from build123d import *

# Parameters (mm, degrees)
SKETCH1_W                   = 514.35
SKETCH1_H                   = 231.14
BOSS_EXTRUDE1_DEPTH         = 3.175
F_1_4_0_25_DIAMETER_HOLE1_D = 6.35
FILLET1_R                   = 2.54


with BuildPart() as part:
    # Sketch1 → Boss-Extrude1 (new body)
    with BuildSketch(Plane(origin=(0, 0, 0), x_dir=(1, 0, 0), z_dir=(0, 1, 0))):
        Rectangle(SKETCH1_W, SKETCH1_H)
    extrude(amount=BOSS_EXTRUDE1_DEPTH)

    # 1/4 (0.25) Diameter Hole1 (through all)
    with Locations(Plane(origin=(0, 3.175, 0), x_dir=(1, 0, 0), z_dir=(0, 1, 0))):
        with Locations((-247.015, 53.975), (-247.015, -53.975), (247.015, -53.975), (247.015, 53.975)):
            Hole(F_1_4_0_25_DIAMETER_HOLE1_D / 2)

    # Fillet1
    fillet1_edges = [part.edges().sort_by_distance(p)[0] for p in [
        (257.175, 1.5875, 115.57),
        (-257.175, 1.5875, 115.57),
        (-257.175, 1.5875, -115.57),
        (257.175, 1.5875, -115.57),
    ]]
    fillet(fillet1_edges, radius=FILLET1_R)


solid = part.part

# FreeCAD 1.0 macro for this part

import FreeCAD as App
import Part
import Sketcher
from FreeCAD import Vector
Q = App.Units.Quantity


def edges_at(feature, points):
    """Names of the edges that pass closest to the given points."""
    edges = feature.Shape.Edges
    near = lambda p: min(range(len(edges)), key=lambda i: edges[i].distToShape(Part.Vertex(*p))[0])
    return sorted({f"Edge{near(p) + 1}" for p in points})

doc = App.newDocument("Part")
body = doc.addObject("PartDesign::Body", "Body")

# Sketch on XZ plane
sketch1 = body.newObject("Sketcher::SketchObject", "Sketch")
sketch1.AttachmentSupport = (doc.getObject("XZ_Plane"), [""])
sketch1.MapMode = "FlatFace"
sketch1.addGeometry(Part.LineSegment(Vector(-257, -116, 0), Vector(-257, 116, 0)), False)
sketch1.addGeometry(Part.LineSegment(Vector(-257, 116, 0), Vector(257, 116, 0)), False)
sketch1.addGeometry(Part.LineSegment(Vector(257, 116, 0), Vector(257, -116, 0)), False)
sketch1.addGeometry(Part.LineSegment(Vector(257, -116, 0), Vector(-257, -116, 0)), False)
sketch1.addConstraint(Sketcher.Constraint("Coincident", 0, 2, 1, 1))
sketch1.addConstraint(Sketcher.Constraint("Coincident", 1, 2, 2, 1))
sketch1.addConstraint(Sketcher.Constraint("Coincident", 2, 2, 3, 1))
sketch1.addConstraint(Sketcher.Constraint("Coincident", 3, 2, 0, 1))
sketch1.addConstraint(Sketcher.Constraint("Vertical", 0))
sketch1.addConstraint(Sketcher.Constraint("Horizontal", 1))
sketch1.addConstraint(Sketcher.Constraint("Vertical", 2))
sketch1.addConstraint(Sketcher.Constraint("Horizontal", 3))
sketch1.addConstraint(Sketcher.Constraint("Symmetric", 0, 2, 2, 2, -1, 1))
sketch1.addConstraint(Sketcher.Constraint("DistanceY", 0, 1, 0, 2, Q("9.1 in")))
sketch1.addConstraint(Sketcher.Constraint("DistanceX", 1, 1, 1, 2, Q("20.25 in")))
pad1 = body.newObject("PartDesign::Pad", "Pad")
pad1.Profile = sketch1
pad1.Length = Q("0.125 in")
pad1.Reversed = True

# Sketch on XZ plane
sketch2 = body.newObject("Sketcher::SketchObject", "Sketch001")
sketch2.AttachmentSupport = (doc.getObject("XZ_Plane"), [""])
sketch2.MapMode = "FlatFace"
sketch2.AttachmentOffset = App.Placement(Vector(0, 0, -0.125 * 25.4), App.Rotation())
sketch2.addGeometry(Part.Circle(Vector(-247, -54, 0), Vector(0, 0, 1), 3.2), False)
sketch2.addGeometry(Part.Circle(Vector(-247, 54, 0), Vector(0, 0, 1), 3.2), False)
sketch2.addGeometry(Part.Circle(Vector(247, 54, 0), Vector(0, 0, 1), 3.2), False)
sketch2.addGeometry(Part.Circle(Vector(247, -54, 0), Vector(0, 0, 1), 3.2), False)
sketch2.addConstraint(Sketcher.Constraint("Equal", 0, 1))
sketch2.addConstraint(Sketcher.Constraint("Equal", 1, 2))
sketch2.addConstraint(Sketcher.Constraint("Equal", 2, 3))
sketch2.addConstraint(Sketcher.Constraint("Symmetric", 0, 3, 2, 3, -1, 1))
sketch2.addConstraint(Sketcher.Constraint("Symmetric", 1, 3, 3, 3, -1, 1))
sketch2.addConstraint(Sketcher.Constraint("Symmetric", 1, 3, 2, 3, -2))
sketch2.addConstraint(Sketcher.Constraint("Diameter", 0, Q("0.25 in")))
sketch2.addConstraint(Sketcher.Constraint("DistanceY", 0, 3, 1, 3, Q("4.25 in")))
sketch2.addConstraint(Sketcher.Constraint("DistanceX", 1, 3, 2, 3, Q("19.45 in")))
doc.recompute()
hole = body.newObject("PartDesign::Hole", "Hole")
hole.Profile = sketch2
hole.ThreadType = "None"
hole.Diameter = Q("0.25 in")
hole.DepthType = "ThroughAll"
hole.Reversed = True
doc.recompute()

fillet = body.newObject("PartDesign::Fillet", "Fillet")
fillet.Base = (hole, edges_at(hole, [
    (257.175, 1.587, 115.57),
    (-257.175, 1.587, 115.57),
    (-257.175, 1.587, -115.57),
    (257.175, 1.587, -115.57),
]))
fillet.Radius = Q("0.1 in")

doc.recompute()
